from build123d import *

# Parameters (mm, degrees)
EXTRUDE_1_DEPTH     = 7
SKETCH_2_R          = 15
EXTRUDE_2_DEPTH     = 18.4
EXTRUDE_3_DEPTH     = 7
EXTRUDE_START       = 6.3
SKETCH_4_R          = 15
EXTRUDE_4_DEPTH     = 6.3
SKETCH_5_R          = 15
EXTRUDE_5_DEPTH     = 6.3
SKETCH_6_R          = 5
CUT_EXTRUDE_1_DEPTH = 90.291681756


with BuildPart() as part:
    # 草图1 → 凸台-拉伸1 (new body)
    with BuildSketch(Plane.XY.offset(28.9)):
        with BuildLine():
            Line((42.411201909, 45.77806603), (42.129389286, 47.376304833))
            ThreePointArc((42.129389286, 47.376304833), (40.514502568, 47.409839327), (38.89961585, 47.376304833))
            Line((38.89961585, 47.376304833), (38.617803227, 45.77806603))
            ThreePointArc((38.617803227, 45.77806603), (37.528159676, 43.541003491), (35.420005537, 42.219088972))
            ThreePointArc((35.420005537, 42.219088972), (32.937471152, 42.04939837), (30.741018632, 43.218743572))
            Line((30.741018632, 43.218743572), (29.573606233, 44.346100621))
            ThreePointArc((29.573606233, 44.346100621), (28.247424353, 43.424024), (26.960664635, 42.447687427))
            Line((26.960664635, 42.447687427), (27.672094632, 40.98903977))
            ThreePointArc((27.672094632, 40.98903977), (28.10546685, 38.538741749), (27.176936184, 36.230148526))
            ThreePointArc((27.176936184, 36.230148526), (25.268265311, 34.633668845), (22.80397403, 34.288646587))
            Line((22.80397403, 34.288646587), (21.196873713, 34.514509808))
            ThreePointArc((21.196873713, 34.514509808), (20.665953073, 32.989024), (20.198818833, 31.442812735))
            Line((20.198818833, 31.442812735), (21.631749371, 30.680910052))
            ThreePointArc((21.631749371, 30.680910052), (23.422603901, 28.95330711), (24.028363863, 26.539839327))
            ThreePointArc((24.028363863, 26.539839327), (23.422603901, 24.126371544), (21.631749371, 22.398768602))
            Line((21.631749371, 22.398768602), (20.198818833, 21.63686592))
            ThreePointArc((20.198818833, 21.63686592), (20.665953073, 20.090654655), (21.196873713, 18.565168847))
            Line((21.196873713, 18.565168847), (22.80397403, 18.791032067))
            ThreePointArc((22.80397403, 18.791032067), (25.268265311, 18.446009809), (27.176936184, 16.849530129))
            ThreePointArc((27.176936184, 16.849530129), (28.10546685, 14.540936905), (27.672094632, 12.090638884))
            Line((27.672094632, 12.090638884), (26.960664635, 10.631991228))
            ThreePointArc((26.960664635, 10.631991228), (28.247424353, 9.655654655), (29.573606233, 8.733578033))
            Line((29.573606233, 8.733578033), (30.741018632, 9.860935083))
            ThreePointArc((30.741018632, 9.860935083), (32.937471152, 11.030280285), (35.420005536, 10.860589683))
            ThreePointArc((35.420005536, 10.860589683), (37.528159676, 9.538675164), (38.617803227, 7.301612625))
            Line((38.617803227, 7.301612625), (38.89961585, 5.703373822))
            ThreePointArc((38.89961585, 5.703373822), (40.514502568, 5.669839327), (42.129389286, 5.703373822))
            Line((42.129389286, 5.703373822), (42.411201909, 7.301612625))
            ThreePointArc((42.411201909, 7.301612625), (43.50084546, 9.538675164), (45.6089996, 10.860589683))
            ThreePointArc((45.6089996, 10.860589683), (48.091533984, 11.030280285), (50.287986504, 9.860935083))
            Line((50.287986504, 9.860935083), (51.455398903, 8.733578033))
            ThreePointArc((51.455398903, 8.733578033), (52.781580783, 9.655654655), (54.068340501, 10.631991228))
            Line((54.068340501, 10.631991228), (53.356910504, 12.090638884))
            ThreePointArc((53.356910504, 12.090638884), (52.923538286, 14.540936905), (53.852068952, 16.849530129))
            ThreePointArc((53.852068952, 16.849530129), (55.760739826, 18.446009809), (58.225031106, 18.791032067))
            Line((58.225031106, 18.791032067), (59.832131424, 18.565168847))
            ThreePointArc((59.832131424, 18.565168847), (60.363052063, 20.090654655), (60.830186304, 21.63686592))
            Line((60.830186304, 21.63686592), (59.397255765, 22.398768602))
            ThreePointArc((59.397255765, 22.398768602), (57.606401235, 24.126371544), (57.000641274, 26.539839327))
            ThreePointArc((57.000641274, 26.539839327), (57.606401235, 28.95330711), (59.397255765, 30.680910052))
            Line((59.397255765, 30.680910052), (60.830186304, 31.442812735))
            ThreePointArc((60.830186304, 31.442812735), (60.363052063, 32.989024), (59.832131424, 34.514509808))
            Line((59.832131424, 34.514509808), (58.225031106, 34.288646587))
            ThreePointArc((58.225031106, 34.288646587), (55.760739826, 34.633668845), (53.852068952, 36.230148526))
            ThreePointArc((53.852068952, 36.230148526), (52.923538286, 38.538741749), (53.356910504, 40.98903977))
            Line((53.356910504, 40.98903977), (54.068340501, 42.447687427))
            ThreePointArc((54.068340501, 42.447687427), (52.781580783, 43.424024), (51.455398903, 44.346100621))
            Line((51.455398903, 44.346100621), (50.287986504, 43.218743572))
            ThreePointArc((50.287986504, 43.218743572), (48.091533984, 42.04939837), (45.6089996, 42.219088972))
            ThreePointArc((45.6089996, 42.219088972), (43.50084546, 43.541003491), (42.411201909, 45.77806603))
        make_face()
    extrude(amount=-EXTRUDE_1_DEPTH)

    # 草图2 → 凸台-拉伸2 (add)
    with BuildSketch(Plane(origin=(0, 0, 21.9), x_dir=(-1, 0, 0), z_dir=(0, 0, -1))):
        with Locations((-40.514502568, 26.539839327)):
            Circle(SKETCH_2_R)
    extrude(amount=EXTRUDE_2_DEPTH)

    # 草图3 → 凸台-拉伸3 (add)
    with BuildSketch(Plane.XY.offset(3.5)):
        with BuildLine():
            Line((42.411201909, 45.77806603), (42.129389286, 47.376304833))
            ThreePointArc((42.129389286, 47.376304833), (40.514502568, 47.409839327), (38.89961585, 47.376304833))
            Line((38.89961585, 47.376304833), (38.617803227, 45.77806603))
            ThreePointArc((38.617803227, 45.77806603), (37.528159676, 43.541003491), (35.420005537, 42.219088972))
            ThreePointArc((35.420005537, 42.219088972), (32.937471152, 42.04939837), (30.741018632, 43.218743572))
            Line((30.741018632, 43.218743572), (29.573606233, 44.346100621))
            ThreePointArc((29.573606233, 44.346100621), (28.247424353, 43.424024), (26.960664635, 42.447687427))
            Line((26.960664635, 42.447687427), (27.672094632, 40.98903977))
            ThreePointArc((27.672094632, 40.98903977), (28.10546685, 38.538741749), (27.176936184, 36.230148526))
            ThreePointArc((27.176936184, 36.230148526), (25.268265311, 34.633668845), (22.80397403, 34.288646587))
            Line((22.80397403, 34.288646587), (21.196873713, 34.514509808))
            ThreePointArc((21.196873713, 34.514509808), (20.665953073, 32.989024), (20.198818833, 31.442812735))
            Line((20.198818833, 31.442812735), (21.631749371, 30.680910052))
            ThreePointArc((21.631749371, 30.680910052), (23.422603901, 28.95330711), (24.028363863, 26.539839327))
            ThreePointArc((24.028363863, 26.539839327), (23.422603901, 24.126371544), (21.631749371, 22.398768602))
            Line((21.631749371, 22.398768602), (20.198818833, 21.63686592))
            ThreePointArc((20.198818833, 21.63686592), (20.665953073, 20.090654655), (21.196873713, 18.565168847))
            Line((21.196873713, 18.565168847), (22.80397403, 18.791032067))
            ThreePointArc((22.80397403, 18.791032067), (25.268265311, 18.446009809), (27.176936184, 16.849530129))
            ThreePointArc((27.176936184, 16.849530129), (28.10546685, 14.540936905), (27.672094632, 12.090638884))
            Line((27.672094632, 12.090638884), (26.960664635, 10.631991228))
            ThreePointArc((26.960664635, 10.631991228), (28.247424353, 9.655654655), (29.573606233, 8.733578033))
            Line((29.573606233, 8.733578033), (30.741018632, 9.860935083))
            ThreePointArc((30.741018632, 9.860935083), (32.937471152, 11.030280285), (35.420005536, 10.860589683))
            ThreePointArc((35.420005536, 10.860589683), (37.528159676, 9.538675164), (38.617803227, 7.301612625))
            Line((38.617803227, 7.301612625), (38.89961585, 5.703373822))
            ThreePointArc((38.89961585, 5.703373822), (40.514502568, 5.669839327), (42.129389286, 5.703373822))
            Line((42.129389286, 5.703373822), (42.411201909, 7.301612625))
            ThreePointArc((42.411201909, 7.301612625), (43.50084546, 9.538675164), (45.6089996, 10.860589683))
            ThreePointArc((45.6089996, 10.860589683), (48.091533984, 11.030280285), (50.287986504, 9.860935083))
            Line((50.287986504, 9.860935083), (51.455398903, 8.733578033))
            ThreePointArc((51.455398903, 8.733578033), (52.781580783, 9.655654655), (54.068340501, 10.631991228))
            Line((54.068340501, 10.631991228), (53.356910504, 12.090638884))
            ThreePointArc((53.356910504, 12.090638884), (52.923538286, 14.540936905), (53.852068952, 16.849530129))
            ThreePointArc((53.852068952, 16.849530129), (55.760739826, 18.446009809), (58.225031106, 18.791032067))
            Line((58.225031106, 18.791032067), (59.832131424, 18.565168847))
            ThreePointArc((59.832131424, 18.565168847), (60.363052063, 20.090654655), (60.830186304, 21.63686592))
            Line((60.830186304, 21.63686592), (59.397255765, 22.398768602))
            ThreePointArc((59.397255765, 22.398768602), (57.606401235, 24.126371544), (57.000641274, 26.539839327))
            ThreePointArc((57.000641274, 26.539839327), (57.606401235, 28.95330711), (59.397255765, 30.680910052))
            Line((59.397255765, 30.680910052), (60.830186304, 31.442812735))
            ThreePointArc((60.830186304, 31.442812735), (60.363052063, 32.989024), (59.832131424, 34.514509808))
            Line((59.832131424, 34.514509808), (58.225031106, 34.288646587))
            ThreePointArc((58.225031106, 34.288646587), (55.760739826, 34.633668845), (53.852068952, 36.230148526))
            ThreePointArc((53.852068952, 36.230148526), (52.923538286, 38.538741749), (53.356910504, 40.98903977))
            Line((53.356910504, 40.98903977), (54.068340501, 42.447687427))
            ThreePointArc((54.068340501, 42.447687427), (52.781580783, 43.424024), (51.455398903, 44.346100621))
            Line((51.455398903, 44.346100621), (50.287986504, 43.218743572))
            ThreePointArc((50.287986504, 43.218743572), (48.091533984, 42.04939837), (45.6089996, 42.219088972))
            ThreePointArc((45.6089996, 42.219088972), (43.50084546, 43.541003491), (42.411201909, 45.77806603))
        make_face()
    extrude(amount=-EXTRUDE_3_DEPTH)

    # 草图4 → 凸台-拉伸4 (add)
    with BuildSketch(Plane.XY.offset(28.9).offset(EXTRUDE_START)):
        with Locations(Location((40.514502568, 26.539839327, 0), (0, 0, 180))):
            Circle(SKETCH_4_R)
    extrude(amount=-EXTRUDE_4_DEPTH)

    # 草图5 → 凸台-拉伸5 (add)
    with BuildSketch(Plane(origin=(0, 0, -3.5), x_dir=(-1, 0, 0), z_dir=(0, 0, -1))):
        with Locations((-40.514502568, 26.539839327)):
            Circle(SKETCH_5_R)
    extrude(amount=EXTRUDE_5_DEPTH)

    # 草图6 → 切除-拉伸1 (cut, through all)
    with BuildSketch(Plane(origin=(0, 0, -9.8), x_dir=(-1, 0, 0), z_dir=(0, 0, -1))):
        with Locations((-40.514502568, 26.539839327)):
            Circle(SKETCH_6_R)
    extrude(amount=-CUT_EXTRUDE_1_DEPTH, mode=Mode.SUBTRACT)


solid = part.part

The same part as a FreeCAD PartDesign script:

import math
import FreeCAD as App
import Part
import Sketcher
Q = App.Units.Quantity

doc = App.newDocument("Part")
body = doc.addObject("PartDesign::Body", "Body")

# Sketch on XY plane
sketch1 = body.newObject("Sketcher::SketchObject", "Sketch")
sketch1.AttachmentSupport = (doc.getObject("XY_Plane"), [""])
sketch1.MapMode = "FlatFace"
sketch1.AttachmentOffset = App.Placement(App.Vector(0, 0, 28.9), App.Rotation())
sketch1.addGeometry([
    Part.LineSegment(App.Vector(42.411202, 45.778066, 0), App.Vector(42.129389, 47.376305, 0)),  # 0
    Part.ArcOfCircle(Part.Circle(App.Vector(40.514503, 8.509839, 0), App.Vector(0, 0, 1), 38.900001), math.radians(87.620751), math.radians(92.379249)),  # 1
    Part.LineSegment(App.Vector(38.899616, 47.376305, 0), App.Vector(38.617803, 45.778066, 0)),  # 2
    Part.ArcOfCircle(Part.Circle(App.Vector(34.164503, 46.563303, 0), App.Vector(0, 0, 1), 4.522), math.radians(-73.880401), math.radians(-10)),  # 3
    Part.ArcOfCircle(Part.Circle(App.Vector(33.882264, 46.471598, 0), App.Vector(0, 0, 1), 4.522), math.radians(-134), math.radians(-70.119599)),  # 4
    Part.LineSegment(App.Vector(30.741019, 43.218744, 0), App.Vector(29.573606, 44.346101, 0)),  # 5
    Part.ArcOfCircle(Part.Circle(App.Vector(51.112271, 11.953263, 0), App.Vector(0, 0, 1), 38.9), math.radians(123.620751), math.radians(128.379249)),  # 6
    Part.LineSegment(App.Vector(26.960665, 42.447687, 0), App.Vector(27.672095, 40.98904, 0)),  # 7
    Part.ArcOfCircle(Part.Circle(App.Vector(23.607748, 39.006725, 0), App.Vector(0, 0, 1), 4.522), math.radians(-37.880401), math.radians(26)),  # 8
    Part.ArcOfCircle(Part.Circle(App.Vector(23.433315, 38.766639, 0), App.Vector(0, 0, 1), 4.522), math.radians(-98), math.radians(-34.119599)),  # 9
    Part.LineSegment(App.Vector(22.803974, 34.288647, 0), App.Vector(21.196874, 34.51451, 0)),  # 10
    Part.ArcOfCircle(Part.Circle(App.Vector(57.662051, 20.968263, 0), App.Vector(0, 0, 1), 38.9), math.radians(159.620751), math.radians(164.379249)),  # 11
    Part.LineSegment(App.Vector(20.198819, 31.442813, 0), App.Vector(21.631749, 30.68091, 0)),  # 12
    Part.ArcOfCircle(Part.Circle(App.Vector(19.508799, 26.688221, 0), App.Vector(0, 0, 1), 4.522), math.radians(-1.880401), math.radians(62)),  # 13
    Part.ArcOfCircle(Part.Circle(App.Vector(19.508799, 26.391458, 0), App.Vector(0, 0, 1), 4.522), math.radians(-62), math.radians(1.880401)),  # 14
    Part.LineSegment(App.Vector(21.631749, 22.398769, 0), App.Vector(20.198819, 21.636866, 0)),  # 15
    Part.ArcOfCircle(Part.Circle(App.Vector(57.662051, 32.111416, 0), App.Vector(0, 0, 1), 38.9), math.radians(-164.379249), math.radians(-159.620751)),  # 16
    Part.LineSegment(App.Vector(21.196874, 18.565169, 0), App.Vector(22.803974, 18.791032, 0)),  # 17
    Part.ArcOfCircle(Part.Circle(App.Vector(23.433315, 14.31304, 0), App.Vector(0, 0, 1), 4.522), math.radians(34.119599), math.radians(98)),  # 18
    Part.ArcOfCircle(Part.Circle(App.Vector(23.607748, 14.072953, 0), App.Vector(0, 0, 1), 4.522), math.radians(-26), math.radians(37.880401)),  # 19
    Part.LineSegment(App.Vector(27.672095, 12.090639, 0), App.Vector(26.960665, 10.631991, 0)),  # 20
    Part.ArcOfCircle(Part.Circle(App.Vector(51.112271, 41.126416, 0), App.Vector(0, 0, 1), 38.900001), math.radians(-128.379249), math.radians(-123.620751)),  # 21
    Part.LineSegment(App.Vector(29.573606, 8.733578, 0), App.Vector(30.741019, 9.860935, 0)),  # 22
    Part.ArcOfCircle(Part.Circle(App.Vector(33.882264, 6.608081, 0), App.Vector(0, 0, 1), 4.522), math.radians(70.119599), math.radians(134)),  # 23
    Part.ArcOfCircle(Part.Circle(App.Vector(34.164503, 6.516376, 0), App.Vector(0, 0, 1), 4.522), math.radians(10), math.radians(73.880401)),  # 24
    Part.LineSegment(App.Vector(38.617803, 7.301613, 0), App.Vector(38.899616, 5.703374, 0)),  # 25
    Part.ArcOfCircle(Part.Circle(App.Vector(40.514503, 44.569839, 0), App.Vector(0, 0, 1), 38.899999), math.radians(-92.379249), math.radians(-87.620751)),  # 26
    Part.LineSegment(App.Vector(42.129389, 5.703374, 0), App.Vector(42.411202, 7.301613, 0)),  # 27
    Part.ArcOfCircle(Part.Circle(App.Vector(46.864503, 6.516376, 0), App.Vector(0, 0, 1), 4.522), math.radians(106.119599), math.radians(170)),  # 28
    Part.ArcOfCircle(Part.Circle(App.Vector(47.146741, 6.608081, 0), App.Vector(0, 0, 1), 4.522), math.radians(46), math.radians(109.880401)),  # 29
    Part.LineSegment(App.Vector(50.287987, 9.860935, 0), App.Vector(51.455399, 8.733578, 0)),  # 30
    Part.ArcOfCircle(Part.Circle(App.Vector(29.916734, 41.126416, 0), App.Vector(0, 0, 1), 38.900001), math.radians(-56.379249), math.radians(-51.620751)),  # 31
    Part.LineSegment(App.Vector(54.068341, 10.631991, 0), App.Vector(53.356911, 12.090639, 0)),  # 32
    Part.ArcOfCircle(Part.Circle(App.Vector(57.421257, 14.072953, 0), App.Vector(0, 0, 1), 4.522), math.radians(142.119599), math.radians(206)),  # 33
    Part.ArcOfCircle(Part.Circle(App.Vector(57.59569, 14.31304, 0), App.Vector(0, 0, 1), 4.522), math.radians(82), math.radians(145.880401)),  # 34
    Part.LineSegment(App.Vector(58.225031, 18.791032, 0), App.Vector(59.832131, 18.565169, 0)),  # 35
    Part.ArcOfCircle(Part.Circle(App.Vector(23.366953, 32.111416, 0), App.Vector(0, 0, 1), 38.900001), math.radians(-20.379249), math.radians(-15.620751)),  # 36
    Part.LineSegment(App.Vector(60.830186, 21.636866, 0), App.Vector(59.397256, 22.398769, 0)),  # 37
    Part.ArcOfCircle(Part.Circle(App.Vector(61.520206, 26.391458, 0), App.Vector(0, 0, 1), 4.522), math.radians(178.119599), math.radians(242)),  # 38
    Part.ArcOfCircle(Part.Circle(App.Vector(61.520206, 26.688221, 0), App.Vector(0, 0, 1), 4.522), math.radians(118), math.radians(181.880401)),  # 39
    Part.LineSegment(App.Vector(59.397256, 30.68091, 0), App.Vector(60.830186, 31.442813, 0)),  # 40
    Part.ArcOfCircle(Part.Circle(App.Vector(23.366953, 20.968263, 0), App.Vector(0, 0, 1), 38.900001), math.radians(15.620751), math.radians(20.379249)),  # 41
    Part.LineSegment(App.Vector(59.832131, 34.51451, 0), App.Vector(58.225031, 34.288647, 0)),  # 42
    Part.ArcOfCircle(Part.Circle(App.Vector(57.59569, 38.766639, 0), App.Vector(0, 0, 1), 4.522), math.radians(-145.880401), math.radians(-82)),  # 43
    Part.ArcOfCircle(Part.Circle(App.Vector(57.421257, 39.006725, 0), App.Vector(0, 0, 1), 4.522), math.radians(154), math.radians(217.880401)),  # 44
    Part.LineSegment(App.Vector(53.356911, 40.98904, 0), App.Vector(54.068341, 42.447687, 0)),  # 45
    Part.ArcOfCircle(Part.Circle(App.Vector(29.916734, 11.953263, 0), App.Vector(0, 0, 1), 38.9), math.radians(51.620751), math.radians(56.379249)),  # 46
    Part.LineSegment(App.Vector(51.455399, 44.346101, 0), App.Vector(50.287987, 43.218744, 0)),  # 47
    Part.ArcOfCircle(Part.Circle(App.Vector(47.146741, 46.471598, 0), App.Vector(0, 0, 1), 4.522), math.radians(-109.880401), math.radians(-46)),  # 48
    Part.ArcOfCircle(Part.Circle(App.Vector(46.864503, 46.563303, 0), App.Vector(0, 0, 1), 4.522), math.radians(-170), math.radians(-106.119599)),  # 49
], False)
sketch1.addConstraint([
    Sketcher.Constraint("Coincident", 0, 2, 1, 1),
    Sketcher.Constraint("Coincident", 1, 2, 2, 1),
    Sketcher.Constraint("Coincident", 2, 2, 3, 2),
    Sketcher.Constraint("Coincident", 3, 1, 4, 2),
    Sketcher.Constraint("Coincident", 4, 1, 5, 1),
    Sketcher.Constraint("Coincident", 5, 2, 6, 1),
    Sketcher.Constraint("Coincident", 6, 2, 7, 1),
    Sketcher.Constraint("Coincident", 7, 2, 8, 2),
    Sketcher.Constraint("Coincident", 8, 1, 9, 2),
    Sketcher.Constraint("Coincident", 9, 1, 10, 1),
    Sketcher.Constraint("Coincident", 10, 2, 11, 1),
    Sketcher.Constraint("Coincident", 11, 2, 12, 1),
    Sketcher.Constraint("Coincident", 12, 2, 13, 2),
    Sketcher.Constraint("Coincident", 13, 1, 14, 2),
    Sketcher.Constraint("Coincident", 14, 1, 15, 1),
    Sketcher.Constraint("Coincident", 15, 2, 16, 1),
    Sketcher.Constraint("Coincident", 16, 2, 17, 1),
    Sketcher.Constraint("Coincident", 17, 2, 18, 2),
    Sketcher.Constraint("Coincident", 18, 1, 19, 2),
    Sketcher.Constraint("Coincident", 19, 1, 20, 1),
    Sketcher.Constraint("Coincident", 20, 2, 21, 1),
    Sketcher.Constraint("Coincident", 21, 2, 22, 1),
    Sketcher.Constraint("Coincident", 22, 2, 23, 2),
    Sketcher.Constraint("Coincident", 23, 1, 24, 2),
    Sketcher.Constraint("Coincident", 24, 1, 25, 1),
    Sketcher.Constraint("Coincident", 25, 2, 26, 1),
    Sketcher.Constraint("Coincident", 26, 2, 27, 1),
    Sketcher.Constraint("Coincident", 27, 2, 28, 2),
    Sketcher.Constraint("Coincident", 28, 1, 29, 2),
    Sketcher.Constraint("Coincident", 29, 1, 30, 1),
    Sketcher.Constraint("Coincident", 30, 2, 31, 1),
    Sketcher.Constraint("Coincident", 31, 2, 32, 1),
    Sketcher.Constraint("Coincident", 32, 2, 33, 2),
    Sketcher.Constraint("Coincident", 33, 1, 34, 2),
    Sketcher.Constraint("Coincident", 34, 1, 35, 1),
    Sketcher.Constraint("Coincident", 35, 2, 36, 1),
    Sketcher.Constraint("Coincident", 36, 2, 37, 1),
    Sketcher.Constraint("Coincident", 37, 2, 38, 2),
    Sketcher.Constraint("Coincident", 38, 1, 39, 2),
    Sketcher.Constraint("Coincident", 39, 1, 40, 1),
    Sketcher.Constraint("Coincident", 40, 2, 41, 1),
    Sketcher.Constraint("Coincident", 41, 2, 42, 1),
    Sketcher.Constraint("Coincident", 42, 2, 43, 2),
    Sketcher.Constraint("Coincident", 43, 1, 44, 2),
    Sketcher.Constraint("Coincident", 44, 1, 45, 1),
    Sketcher.Constraint("Coincident", 45, 2, 46, 1),
    Sketcher.Constraint("Coincident", 46, 2, 47, 1),
    Sketcher.Constraint("Coincident", 47, 2, 48, 2),
    Sketcher.Constraint("Coincident", 48, 1, 49, 2),
    Sketcher.Constraint("Coincident", 49, 1, 0, 1),
    Sketcher.Constraint("Radius", 1, Q("38.900001 mm")),
    Sketcher.Constraint("Radius", 6, Q("38.9 mm")),
    Sketcher.Constraint("Radius", 11, Q("38.9 mm")),
    Sketcher.Constraint("Radius", 16, Q("38.9 mm")),
    Sketcher.Constraint("Radius", 21, Q("38.900001 mm")),
    Sketcher.Constraint("Radius", 26, Q("38.899999 mm")),
    Sketcher.Constraint("Radius", 31, Q("38.900001 mm")),
    Sketcher.Constraint("Radius", 36, Q("38.900001 mm")),
    Sketcher.Constraint("Radius", 41, Q("38.900001 mm")),
    Sketcher.Constraint("Radius", 46, Q("38.9 mm")),
    Sketcher.Constraint("Radius", 3, Q("4.522 mm")),
    Sketcher.Constraint("Radius", 4, Q("4.522 mm")),
    Sketcher.Constraint("Radius", 8, Q("4.522 mm")),
    Sketcher.Constraint("Radius", 9, Q("4.522 mm")),
    Sketcher.Constraint("Radius", 13, Q("4.522 mm")),
    Sketcher.Constraint("Radius", 14, Q("4.522 mm")),
    Sketcher.Constraint("Radius", 18, Q("4.522 mm")),
    Sketcher.Constraint("Radius", 19, Q("4.522 mm")),
    Sketcher.Constraint("Radius", 23, Q("4.522 mm")),
    Sketcher.Constraint("Radius", 24, Q("4.522 mm")),
    Sketcher.Constraint("Radius", 28, Q("4.522 mm")),
    Sketcher.Constraint("Radius", 29, Q("4.522 mm")),
    Sketcher.Constraint("Radius", 33, Q("4.522 mm")),
    Sketcher.Constraint("Radius", 34, Q("4.522 mm")),
    Sketcher.Constraint("Radius", 38, Q("4.522 mm")),
    Sketcher.Constraint("Radius", 39, Q("4.522 mm")),
    Sketcher.Constraint("Radius", 43, Q("4.522 mm")),
    Sketcher.Constraint("Radius", 44, Q("4.522 mm")),
    Sketcher.Constraint("Radius", 48, Q("4.522 mm")),
    Sketcher.Constraint("Radius", 49, Q("4.522 mm")),
    Sketcher.Constraint("DistanceX", -1, 1, 28, 1, Q("45.609 mm")),
    Sketcher.Constraint("DistanceX", -1, 1, 48, 1, Q("45.609 mm")),
    Sketcher.Constraint("DistanceY", -1, 1, 4, 3, Q("46.471598 mm")),
    Sketcher.Constraint("DistanceX", -1, 1, 13, 3, Q("19.508799 mm")),
    Sketcher.Constraint("DistanceX", -1, 1, 14, 3, Q("19.508799 mm")),
    Sketcher.Constraint("DistanceY", -1, 1, 48, 3, Q("46.471598 mm")),
    Sketcher.Constraint("DistanceY", -1, 1, 5, 2, Q("44.346101 mm")),
    Sketcher.Constraint("DistanceX", -1, 1, 27, 2, Q("42.411202 mm")),
    Sketcher.Constraint("DistanceX", -1, 1, 30, 2, Q("51.455399 mm")),
    Sketcher.Constraint("DistanceX", -1, 1, 46, 2, Q("51.455399 mm")),
    Sketcher.Constraint("DistanceY", -1, 1, 46, 2, Q("44.346101 mm")),
    Sketcher.Constraint("DistanceX", -1, 1, 49, 1, Q("42.411202 mm")),
    Sketcher.Constraint("DistanceY", -1, 1, 1, 3, Q("8.509839 mm")),
    Sketcher.Constraint("DistanceX", -1, 1, 6, 3, Q("51.112271 mm")),
    Sketcher.Constraint("DistanceY", -1, 1, 9, 3, Q("38.766639 mm")),
    Sketcher.Constraint("DistanceX", -1, 1, 11, 3, Q("57.662051 mm")),
    Sketcher.Constraint("DistanceY", -1, 1, 13, 3, Q("26.688221 mm")),
    Sketcher.Constraint("DistanceX", -1, 1, 16, 3, Q("57.662051 mm")),
    Sketcher.Constraint("DistanceY", -1, 1, 18, 3, Q("14.31304 mm")),
    Sketcher.Constraint("DistanceX", -1, 1, 21, 3, Q("51.112271 mm")),
    Sketcher.Constraint("DistanceY", -1, 1, 23, 3, Q("6.608081 mm")),
    Sketcher.Constraint("DistanceY", -1, 1, 26, 3, Q("44.569839 mm")),
    Sketcher.Constraint("DistanceX", -1, 1, 29, 3, Q("47.146741 mm")),
    Sketcher.Constraint("DistanceY", -1, 1, 29, 3, Q("6.608081 mm")),
    Sketcher.Constraint("DistanceX", -1, 1, 34, 3, Q("57.59569 mm")),
    Sketcher.Constraint("DistanceY", -1, 1, 34, 3, Q("14.31304 mm")),
    Sketcher.Constraint("DistanceY", -1, 1, 39, 3, Q("26.688221 mm")),
    Sketcher.Constraint("DistanceX", -1, 1, 43, 3, Q("57.59569 mm")),
    Sketcher.Constraint("DistanceY", -1, 1, 43, 3, Q("38.766639 mm")),
    Sketcher.Constraint("DistanceX", -1, 1, 48, 3, Q("47.146741 mm")),
    Sketcher.Constraint("DistanceX", -1, 1, 0, 2, Q("42.129389 mm")),
    Sketcher.Constraint("DistanceY", -1, 1, 3, 1, Q("42.219089 mm")),
    Sketcher.Constraint("DistanceX", -1, 1, 4, 1, Q("30.741019 mm")),
    Sketcher.Constraint("DistanceY", -1, 1, 7, 2, Q("40.98904 mm")),
    Sketcher.Constraint("DistanceY", -1, 1, 8, 1, Q("36.230149 mm")),
    Sketcher.Constraint("DistanceY", -1, 1, 10, 2, Q("34.51451 mm")),
    Sketcher.Constraint("DistanceX", -1, 1, 11, 2, Q("20.198819 mm")),
    Sketcher.Constraint("DistanceX", -1, 1, 12, 2, Q("21.631749 mm")),
    Sketcher.Constraint("DistanceY", -1, 1, 13, 1, Q("26.539839 mm")),
    Sketcher.Constraint("DistanceX", -1, 1, 14, 1, Q("21.631749 mm")),
    Sketcher.Constraint("DistanceX", -1, 1, 15, 2, Q("20.198819 mm")),
    Sketcher.Constraint("DistanceY", -1, 1, 16, 2, Q("18.565169 mm")),
    Sketcher.Constraint("DistanceY", -1, 1, 18, 1, Q("16.84953 mm")),
    Sketcher.Constraint("DistanceY", -1, 1, 19, 1, Q("12.090639 mm")),
    Sketcher.Constraint("DistanceY", -1, 1, 20, 2, Q("10.631991 mm")),
    Sketcher.Constraint("DistanceY", -1, 1, 21, 2, Q("8.733578 mm")),
    Sketcher.Constraint("DistanceX", -1, 1, 22, 2, Q("30.741019 mm")),
    Sketcher.Constraint("DistanceY", -1, 1, 23, 1, Q("10.86059 mm")),
    Sketcher.Constraint("DistanceX", -1, 1, 26, 2, Q("42.129389 mm")),
    Sketcher.Constraint("DistanceY", -1, 1, 30, 2, Q("8.733578 mm")),
    Sketcher.Constraint("DistanceX", -1, 1, 31, 2, Q("54.068341 mm")),
    Sketcher.Constraint("DistanceY", -1, 1, 31, 2, Q("10.631991 mm")),
    Sketcher.Constraint("DistanceX", -1, 1, 32, 2, Q("53.356911 mm")),
    Sketcher.Constraint("DistanceY", -1, 1, 32, 2, Q("12.090639 mm")),
    Sketcher.Constraint("DistanceX", -1, 1, 33, 1, Q("53.852069 mm")),
    Sketcher.Constraint("DistanceX", -1, 1, 34, 1, Q("58.225031 mm")),
    Sketcher.Constraint("DistanceX", -1, 1, 35, 2, Q("59.832131 mm")),
    Sketcher.Constraint("DistanceY", -1, 1, 35, 2, Q("18.565169 mm")),
    Sketcher.Constraint("DistanceY", -1, 1, 37, 2, Q("22.398769 mm")),
    Sketcher.Constraint("DistanceX", -1, 1, 38, 1, Q("57.000641 mm")),
    Sketcher.Constraint("DistanceY", -1, 1, 38, 1, Q("26.539839 mm")),
    Sketcher.Constraint("DistanceY", -1, 1, 39, 1, Q("30.68091 mm")),
    Sketcher.Constraint("DistanceX", -1, 1, 41, 2, Q("59.832131 mm")),
    Sketcher.Constraint("DistanceY", -1, 1, 41, 2, Q("34.51451 mm")),
    Sketcher.Constraint("DistanceX", -1, 1, 42, 2, Q("58.225031 mm")),
    Sketcher.Constraint("DistanceX", -1, 1, 43, 1, Q("53.852069 mm")),
    Sketcher.Constraint("DistanceX", -1, 1, 44, 1, Q("53.356911 mm")),
    Sketcher.Constraint("DistanceY", -1, 1, 44, 1, Q("40.98904 mm")),
    Sketcher.Constraint("DistanceX", -1, 1, 45, 2, Q("54.068341 mm")),
    Sketcher.Constraint("Distance", 0, Q("1.622894 mm")),
    Sketcher.Constraint("Distance", 2, Q("1.622894 mm")),
    Sketcher.Constraint("Distance", 5, Q("1.622894 mm")),
    Sketcher.Constraint("Distance", 7, Q("1.622894 mm")),
    Sketcher.Constraint("Distance", 10, Q("1.622894 mm")),
    Sketcher.Constraint("Distance", 12, Q("1.622894 mm")),
    Sketcher.Constraint("Distance", 15, Q("1.622894 mm")),
    Sketcher.Constraint("Distance", 17, Q("1.622894 mm")),
    Sketcher.Constraint("Distance", 20, Q("1.622894 mm")),
    Sketcher.Constraint("Distance", 22, Q("1.622894 mm")),
    Sketcher.Constraint("Distance", 25, Q("1.622894 mm")),
    Sketcher.Constraint("Distance", 27, Q("1.622894 mm")),
    Sketcher.Constraint("Distance", 30, Q("1.622894 mm")),
    Sketcher.Constraint("Distance", 37, Q("1.622894 mm")),
    Sketcher.Constraint("Distance", 40, Q("1.622894 mm")),
    Sketcher.Constraint("Distance", 45, Q("1.622894 mm")),
    Sketcher.Constraint("Distance", 47, Q("1.622894 mm")),
    Sketcher.Constraint("DistanceX", -1, 1, 1, 3, Q("40.514503 mm")),
    Sketcher.Constraint("DistanceX", -1, 1, 3, 3, Q("34.164503 mm")),
    Sketcher.Constraint("DistanceY", -1, 1, 3, 3, Q("46.563303 mm")),
    Sketcher.Constraint("DistanceX", -1, 1, 8, 3, Q("23.607748 mm")),
    Sketcher.Constraint("DistanceY", -1, 1, 8, 3, Q("39.006725 mm")),
    Sketcher.Constraint("DistanceX", -1, 1, 18, 3, Q("23.433315 mm")),
    Sketcher.Constraint("DistanceX", -1, 1, 19, 3, Q("23.607748 mm")),
    Sketcher.Constraint("DistanceX", -1, 1, 24, 3, Q("34.164503 mm")),
    Sketcher.Constraint("DistanceX", -1, 1, 26, 3, Q("40.514503 mm")),
    Sketcher.Constraint("DistanceX", -1, 1, 36, 3, Q("23.366953 mm")),
    Sketcher.Constraint("DistanceX", -1, 1, 38, 3, Q("61.520206 mm")),
    Sketcher.Constraint("DistanceX", -1, 1, 41, 3, Q("23.366953 mm")),
    Sketcher.Constraint("DistanceX", -1, 1, 1, 2, Q("38.899616 mm")),
    Sketcher.Constraint("DistanceX", -1, 1, 24, 1, Q("38.617803 mm")),
])
pad1 = body.newObject("PartDesign::Pad", "Pad")
pad1.Profile = sketch1
pad1.Length = 7
pad1.Reversed = True

# Sketch on XY plane
sketch2 = body.newObject("Sketcher::SketchObject", "Sketch001")
sketch2.AttachmentSupport = (doc.getObject("XY_Plane"), [""])
sketch2.MapMode = "FlatFace"
sketch2.AttachmentOffset = App.Placement(App.Vector(0, 0, 21.9), App.Rotation())
sketch2.addGeometry(Part.Circle(App.Vector(40.514503, 26.539839, 0), App.Vector(0, 0, 1), 15), False)
sketch2.addConstraint([
    Sketcher.Constraint("Diameter", 0, Q("30 mm")),
    Sketcher.Constraint("DistanceY", -1, 1, 0, 3, Q("26.539839 mm")),
    Sketcher.Constraint("DistanceX", -1, 1, 0, 3, Q("40.514503 mm")),
])
pad2 = body.newObject("PartDesign::Pad", "Pad001")
pad2.Profile = sketch2
pad2.Length = 18.4
pad2.Reversed = True

# Sketch on XY plane
sketch3 = body.newObject("Sketcher::SketchObject", "Sketch002")
sketch3.AttachmentSupport = (doc.getObject("XY_Plane"), [""])
sketch3.MapMode = "FlatFace"
sketch3.AttachmentOffset = App.Placement(App.Vector(0, 0, 3.5), App.Rotation())
sketch3.addGeometry([
    Part.LineSegment(App.Vector(42.411202, 45.778066, 0), App.Vector(42.129389, 47.376305, 0)),  # 0
    Part.ArcOfCircle(Part.Circle(App.Vector(40.514503, 8.509839, 0), App.Vector(0, 0, 1), 38.900001), math.radians(87.620751), math.radians(92.379249)),  # 1
    Part.LineSegment(App.Vector(38.899616, 47.376305, 0), App.Vector(38.617803, 45.778066, 0)),  # 2
    Part.ArcOfCircle(Part.Circle(App.Vector(34.164503, 46.563303, 0), App.Vector(0, 0, 1), 4.522), math.radians(-73.880401), math.radians(-10)),  # 3
    Part.ArcOfCircle(Part.Circle(App.Vector(33.882264, 46.471598, 0), App.Vector(0, 0, 1), 4.522), math.radians(-134), math.radians(-70.119599)),  # 4
    Part.LineSegment(App.Vector(30.741019, 43.218744, 0), App.Vector(29.573606, 44.346101, 0)),  # 5
    Part.ArcOfCircle(Part.Circle(App.Vector(51.112271, 11.953263, 0), App.Vector(0, 0, 1), 38.9), math.radians(123.620751), math.radians(128.379249)),  # 6
    Part.LineSegment(App.Vector(26.960665, 42.447687, 0), App.Vector(27.672095, 40.98904, 0)),  # 7
    Part.ArcOfCircle(Part.Circle(App.Vector(23.607748, 39.006725, 0), App.Vector(0, 0, 1), 4.522), math.radians(-37.880401), math.radians(26)),  # 8
    Part.ArcOfCircle(Part.Circle(App.Vector(23.433315, 38.766639, 0), App.Vector(0, 0, 1), 4.522), math.radians(-98), math.radians(-34.119599)),  # 9
    Part.LineSegment(App.Vector(22.803974, 34.288647, 0), App.Vector(21.196874, 34.51451, 0)),  # 10
    Part.ArcOfCircle(Part.Circle(App.Vector(57.662051, 20.968263, 0), App.Vector(0, 0, 1), 38.9), math.radians(159.620751), math.radians(164.379249)),  # 11
    Part.LineSegment(App.Vector(20.198819, 31.442813, 0), App.Vector(21.631749, 30.68091, 0)),  # 12
    Part.ArcOfCircle(Part.Circle(App.Vector(19.508799, 26.688221, 0), App.Vector(0, 0, 1), 4.522), math.radians(-1.880401), math.radians(62)),  # 13
    Part.ArcOfCircle(Part.Circle(App.Vector(19.508799, 26.391458, 0), App.Vector(0, 0, 1), 4.522), math.radians(-62), math.radians(1.880401)),  # 14
    Part.LineSegment(App.Vector(21.631749, 22.398769, 0), App.Vector(20.198819, 21.636866, 0)),  # 15
    Part.ArcOfCircle(Part.Circle(App.Vector(57.662051, 32.111416, 0), App.Vector(0, 0, 1), 38.9), math.radians(-164.379249), math.radians(-159.620751)),  # 16
    Part.LineSegment(App.Vector(21.196874, 18.565169, 0), App.Vector(22.803974, 18.791032, 0)),  # 17
    Part.ArcOfCircle(Part.Circle(App.Vector(23.433315, 14.31304, 0), App.Vector(0, 0, 1), 4.522), math.radians(34.119599), math.radians(98)),  # 18
    Part.ArcOfCircle(Part.Circle(App.Vector(23.607748, 14.072953, 0), App.Vector(0, 0, 1), 4.522), math.radians(-26), math.radians(37.880401)),  # 19
    Part.LineSegment(App.Vector(27.672095, 12.090639, 0), App.Vector(26.960665, 10.631991, 0)),  # 20
    Part.ArcOfCircle(Part.Circle(App.Vector(51.112271, 41.126416, 0), App.Vector(0, 0, 1), 38.900001), math.radians(-128.379249), math.radians(-123.620751)),  # 21
    Part.LineSegment(App.Vector(29.573606, 8.733578, 0), App.Vector(30.741019, 9.860935, 0)),  # 22
    Part.ArcOfCircle(Part.Circle(App.Vector(33.882264, 6.608081, 0), App.Vector(0, 0, 1), 4.522), math.radians(70.119599), math.radians(134)),  # 23
    Part.ArcOfCircle(Part.Circle(App.Vector(34.164503, 6.516376, 0), App.Vector(0, 0, 1), 4.522), math.radians(10), math.radians(73.880401)),  # 24
    Part.LineSegment(App.Vector(38.617803, 7.301613, 0), App.Vector(38.899616, 5.703374, 0)),  # 25
    Part.ArcOfCircle(Part.Circle(App.Vector(40.514503, 44.569839, 0), App.Vector(0, 0, 1), 38.899999), math.radians(-92.379249), math.radians(-87.620751)),  # 26
    Part.LineSegment(App.Vector(42.129389, 5.703374, 0), App.Vector(42.411202, 7.301613, 0)),  # 27
    Part.ArcOfCircle(Part.Circle(App.Vector(46.864503, 6.516376, 0), App.Vector(0, 0, 1), 4.522), math.radians(106.119599), math.radians(170)),  # 28
    Part.ArcOfCircle(Part.Circle(App.Vector(47.146741, 6.608081, 0), App.Vector(0, 0, 1), 4.522), math.radians(46), math.radians(109.880401)),  # 29
    Part.LineSegment(App.Vector(50.287987, 9.860935, 0), App.Vector(51.455399, 8.733578, 0)),  # 30
    Part.ArcOfCircle(Part.Circle(App.Vector(29.916734, 41.126416, 0), App.Vector(0, 0, 1), 38.900001), math.radians(-56.379249), math.radians(-51.620751)),  # 31
    Part.LineSegment(App.Vector(54.068341, 10.631991, 0), App.Vector(53.356911, 12.090639, 0)),  # 32
    Part.ArcOfCircle(Part.Circle(App.Vector(57.421257, 14.072953, 0), App.Vector(0, 0, 1), 4.522), math.radians(142.119599), math.radians(206)),  # 33
    Part.ArcOfCircle(Part.Circle(App.Vector(57.59569, 14.31304, 0), App.Vector(0, 0, 1), 4.522), math.radians(82), math.radians(145.880401)),  # 34
    Part.LineSegment(App.Vector(58.225031, 18.791032, 0), App.Vector(59.832131, 18.565169, 0)),  # 35
    Part.ArcOfCircle(Part.Circle(App.Vector(23.366953, 32.111416, 0), App.Vector(0, 0, 1), 38.900001), math.radians(-20.379249), math.radians(-15.620751)),  # 36
    Part.LineSegment(App.Vector(60.830186, 21.636866, 0), App.Vector(59.397256, 22.398769, 0)),  # 37
    Part.ArcOfCircle(Part.Circle(App.Vector(61.520206, 26.391458, 0), App.Vector(0, 0, 1), 4.522), math.radians(178.119599), math.radians(242)),  # 38
    Part.ArcOfCircle(Part.Circle(App.Vector(61.520206, 26.688221, 0), App.Vector(0, 0, 1), 4.522), math.radians(118), math.radians(181.880401)),  # 39
    Part.LineSegment(App.Vector(59.397256, 30.68091, 0), App.Vector(60.830186, 31.442813, 0)),  # 40
    Part.ArcOfCircle(Part.Circle(App.Vector(23.366953, 20.968263, 0), App.Vector(0, 0, 1), 38.900001), math.radians(15.620751), math.radians(20.379249)),  # 41
    Part.LineSegment(App.Vector(59.832131, 34.51451, 0), App.Vector(58.225031, 34.288647, 0)),  # 42
    Part.ArcOfCircle(Part.Circle(App.Vector(57.59569, 38.766639, 0), App.Vector(0, 0, 1), 4.522), math.radians(-145.880401), math.radians(-82)),  # 43
    Part.ArcOfCircle(Part.Circle(App.Vector(57.421257, 39.006725, 0), App.Vector(0, 0, 1), 4.522), math.radians(154), math.radians(217.880401)),  # 44
    Part.LineSegment(App.Vector(53.356911, 40.98904, 0), App.Vector(54.068341, 42.447687, 0)),  # 45
    Part.ArcOfCircle(Part.Circle(App.Vector(29.916734, 11.953263, 0), App.Vector(0, 0, 1), 38.9), math.radians(51.620751), math.radians(56.379249)),  # 46
    Part.LineSegment(App.Vector(51.455399, 44.346101, 0), App.Vector(50.287987, 43.218744, 0)),  # 47
    Part.ArcOfCircle(Part.Circle(App.Vector(47.146741, 46.471598, 0), App.Vector(0, 0, 1), 4.522), math.radians(-109.880401), math.radians(-46)),  # 48
    Part.ArcOfCircle(Part.Circle(App.Vector(46.864503, 46.563303, 0), App.Vector(0, 0, 1), 4.522), math.radians(-170), math.radians(-106.119599)),  # 49
], False)
sketch3.addConstraint([
    Sketcher.Constraint("Coincident", 0, 2, 1, 1),
    Sketcher.Constraint("Coincident", 1, 2, 2, 1),
    Sketcher.Constraint("Coincident", 2, 2, 3, 2),
    Sketcher.Constraint("Coincident", 3, 1, 4, 2),
    Sketcher.Constraint("Coincident", 4, 1, 5, 1),
    Sketcher.Constraint("Coincident", 5, 2, 6, 1),
    Sketcher.Constraint("Coincident", 6, 2, 7, 1),
    Sketcher.Constraint("Coincident", 7, 2, 8, 2),
    Sketcher.Constraint("Coincident", 8, 1, 9, 2),
    Sketcher.Constraint("Coincident", 9, 1, 10, 1),
    Sketcher.Constraint("Coincident", 10, 2, 11, 1),
    Sketcher.Constraint("Coincident", 11, 2, 12, 1),
    Sketcher.Constraint("Coincident", 12, 2, 13, 2),
    Sketcher.Constraint("Coincident", 13, 1, 14, 2),
    Sketcher.Constraint("Coincident", 14, 1, 15, 1),
    Sketcher.Constraint("Coincident", 15, 2, 16, 1),
    Sketcher.Constraint("Coincident", 16, 2, 17, 1),
    Sketcher.Constraint("Coincident", 17, 2, 18, 2),
    Sketcher.Constraint("Coincident", 18, 1, 19, 2),
    Sketcher.Constraint("Coincident", 19, 1, 20, 1),
    Sketcher.Constraint("Coincident", 20, 2, 21, 1),
    Sketcher.Constraint("Coincident", 21, 2, 22, 1),
    Sketcher.Constraint("Coincident", 22, 2, 23, 2),
    Sketcher.Constraint("Coincident", 23, 1, 24, 2),
    Sketcher.Constraint("Coincident", 24, 1, 25, 1),
    Sketcher.Constraint("Coincident", 25, 2, 26, 1),
    Sketcher.Constraint("Coincident", 26, 2, 27, 1),
    Sketcher.Constraint("Coincident", 27, 2, 28, 2),
    Sketcher.Constraint("Coincident", 28, 1, 29, 2),
    Sketcher.Constraint("Coincident", 29, 1, 30, 1),
    Sketcher.Constraint("Coincident", 30, 2, 31, 1),
    Sketcher.Constraint("Coincident", 31, 2, 32, 1),
    Sketcher.Constraint("Coincident", 32, 2, 33, 2),
    Sketcher.Constraint("Coincident", 33, 1, 34, 2),
    Sketcher.Constraint("Coincident", 34, 1, 35, 1),
    Sketcher.Constraint("Coincident", 35, 2, 36, 1),
    Sketcher.Constraint("Coincident", 36, 2, 37, 1),
    Sketcher.Constraint("Coincident", 37, 2, 38, 2),
    Sketcher.Constraint("Coincident", 38, 1, 39, 2),
    Sketcher.Constraint("Coincident", 39, 1, 40, 1),
    Sketcher.Constraint("Coincident", 40, 2, 41, 1),
    Sketcher.Constraint("Coincident", 41, 2, 42, 1),
    Sketcher.Constraint("Coincident", 42, 2, 43, 2),
    Sketcher.Constraint("Coincident", 43, 1, 44, 2),
    Sketcher.Constraint("Coincident", 44, 1, 45, 1),
    Sketcher.Constraint("Coincident", 45, 2, 46, 1),
    Sketcher.Constraint("Coincident", 46, 2, 47, 1),
    Sketcher.Constraint("Coincident", 47, 2, 48, 2),
    Sketcher.Constraint("Coincident", 48, 1, 49, 2),
    Sketcher.Constraint("Coincident", 49, 1, 0, 1),
    Sketcher.Constraint("Radius", 1, Q("38.900001 mm")),
    Sketcher.Constraint("Radius", 6, Q("38.9 mm")),
    Sketcher.Constraint("Radius", 11, Q("38.9 mm")),
    Sketcher.Constraint("Radius", 16, Q("38.9 mm")),
    Sketcher.Constraint("Radius", 21, Q("38.900001 mm")),
    Sketcher.Constraint("Radius", 26, Q("38.899999 mm")),
    Sketcher.Constraint("Radius", 31, Q("38.900001 mm")),
    Sketcher.Constraint("Radius", 36, Q("38.900001 mm")),
    Sketcher.Constraint("Radius", 41, Q("38.900001 mm")),
    Sketcher.Constraint("Radius", 46, Q("38.9 mm")),
    Sketcher.Constraint("Radius", 3, Q("4.522 mm")),
    Sketcher.Constraint("Radius", 4, Q("4.522 mm")),
    Sketcher.Constraint("Radius", 8, Q("4.522 mm")),
    Sketcher.Constraint("Radius", 9, Q("4.522 mm")),
    Sketcher.Constraint("Radius", 13, Q("4.522 mm")),
    Sketcher.Constraint("Radius", 14, Q("4.522 mm")),
    Sketcher.Constraint("Radius", 18, Q("4.522 mm")),
    Sketcher.Constraint("Radius", 19, Q("4.522 mm")),
    Sketcher.Constraint("Radius", 23, Q("4.522 mm")),
    Sketcher.Constraint("Radius", 24, Q("4.522 mm")),
    Sketcher.Constraint("Radius", 28, Q("4.522 mm")),
    Sketcher.Constraint("Radius", 29, Q("4.522 mm")),
    Sketcher.Constraint("Radius", 33, Q("4.522 mm")),
    Sketcher.Constraint("Radius", 34, Q("4.522 mm")),
    Sketcher.Constraint("Radius", 38, Q("4.522 mm")),
    Sketcher.Constraint("Radius", 39, Q("4.522 mm")),
    Sketcher.Constraint("Radius", 43, Q("4.522 mm")),
    Sketcher.Constraint("Radius", 44, Q("4.522 mm")),
    Sketcher.Constraint("Radius", 48, Q("4.522 mm")),
    Sketcher.Constraint("Radius", 49, Q("4.522 mm")),
    Sketcher.Constraint("DistanceX", -1, 1, 28, 1, Q("45.609 mm")),
    Sketcher.Constraint("DistanceX", -1, 1, 48, 1, Q("45.609 mm")),
    Sketcher.Constraint("DistanceY", -1, 1, 4, 3, Q("46.471598 mm")),
    Sketcher.Constraint("DistanceX", -1, 1, 13, 3, Q("19.508799 mm")),
    Sketcher.Constraint("DistanceX", -1, 1, 14, 3, Q("19.508799 mm")),
    Sketcher.Constraint("DistanceY", -1, 1, 48, 3, Q("46.471598 mm")),
    Sketcher.Constraint("DistanceY", -1, 1, 5, 2, Q("44.346101 mm")),
    Sketcher.Constraint("DistanceX", -1, 1, 27, 2, Q("42.411202 mm")),
    Sketcher.Constraint("DistanceX", -1, 1, 30, 2, Q("51.455399 mm")),
    Sketcher.Constraint("DistanceX", -1, 1, 46, 2, Q("51.455399 mm")),
    Sketcher.Constraint("DistanceY", -1, 1, 46, 2, Q("44.346101 mm")),
    Sketcher.Constraint("DistanceX", -1, 1, 49, 1, Q("42.411202 mm")),
    Sketcher.Constraint("DistanceY", -1, 1, 1, 3, Q("8.509839 mm")),
    Sketcher.Constraint("DistanceX", -1, 1, 6, 3, Q("51.112271 mm")),
    Sketcher.Constraint("DistanceY", -1, 1, 9, 3, Q("38.766639 mm")),
    Sketcher.Constraint("DistanceX", -1, 1, 11, 3, Q("57.662051 mm")),
    Sketcher.Constraint("DistanceY", -1, 1, 13, 3, Q("26.688221 mm")),
    Sketcher.Constraint("DistanceX", -1, 1, 16, 3, Q("57.662051 mm")),
    Sketcher.Constraint("DistanceY", -1, 1, 18, 3, Q("14.31304 mm")),
    Sketcher.Constraint("DistanceX", -1, 1, 21, 3, Q("51.112271 mm")),
    Sketcher.Constraint("DistanceY", -1, 1, 23, 3, Q("6.608081 mm")),
    Sketcher.Constraint("DistanceY", -1, 1, 26, 3, Q("44.569839 mm")),
    Sketcher.Constraint("DistanceX", -1, 1, 29, 3, Q("47.146741 mm")),
    Sketcher.Constraint("DistanceY", -1, 1, 29, 3, Q("6.608081 mm")),
    Sketcher.Constraint("DistanceX", -1, 1, 34, 3, Q("57.59569 mm")),
    Sketcher.Constraint("DistanceY", -1, 1, 34, 3, Q("14.31304 mm")),
    Sketcher.Constraint("DistanceY", -1, 1, 39, 3, Q("26.688221 mm")),
    Sketcher.Constraint("DistanceX", -1, 1, 43, 3, Q("57.59569 mm")),
    Sketcher.Constraint("DistanceY", -1, 1, 43, 3, Q("38.766639 mm")),
    Sketcher.Constraint("DistanceX", -1, 1, 48, 3, Q("47.146741 mm")),
    Sketcher.Constraint("DistanceX", -1, 1, 0, 2, Q("42.129389 mm")),
    Sketcher.Constraint("DistanceY", -1, 1, 3, 1, Q("42.219089 mm")),
    Sketcher.Constraint("DistanceX", -1, 1, 4, 1, Q("30.741019 mm")),
    Sketcher.Constraint("DistanceY", -1, 1, 7, 2, Q("40.98904 mm")),
    Sketcher.Constraint("DistanceY", -1, 1, 8, 1, Q("36.230149 mm")),
    Sketcher.Constraint("DistanceY", -1, 1, 10, 2, Q("34.51451 mm")),
    Sketcher.Constraint("DistanceX", -1, 1, 11, 2, Q("20.198819 mm")),
    Sketcher.Constraint("DistanceX", -1, 1, 12, 2, Q("21.631749 mm")),
    Sketcher.Constraint("DistanceY", -1, 1, 13, 1, Q("26.539839 mm")),
    Sketcher.Constraint("DistanceX", -1, 1, 14, 1, Q("21.631749 mm")),
    Sketcher.Constraint("DistanceX", -1, 1, 15, 2, Q("20.198819 mm")),
    Sketcher.Constraint("DistanceY", -1, 1, 16, 2, Q("18.565169 mm")),
    Sketcher.Constraint("DistanceY", -1, 1, 18, 1, Q("16.84953 mm")),
    Sketcher.Constraint("DistanceY", -1, 1, 19, 1, Q("12.090639 mm")),
    Sketcher.Constraint("DistanceY", -1, 1, 20, 2, Q("10.631991 mm")),
    Sketcher.Constraint("DistanceY", -1, 1, 21, 2, Q("8.733578 mm")),
    Sketcher.Constraint("DistanceX", -1, 1, 22, 2, Q("30.741019 mm")),
    Sketcher.Constraint("DistanceY", -1, 1, 23, 1, Q("10.86059 mm")),
    Sketcher.Constraint("DistanceX", -1, 1, 26, 2, Q("42.129389 mm")),
    Sketcher.Constraint("DistanceY", -1, 1, 30, 2, Q("8.733578 mm")),
    Sketcher.Constraint("DistanceX", -1, 1, 31, 2, Q("54.068341 mm")),
    Sketcher.Constraint("DistanceY", -1, 1, 31, 2, Q("10.631991 mm")),
    Sketcher.Constraint("DistanceX", -1, 1, 32, 2, Q("53.356911 mm")),
    Sketcher.Constraint("DistanceY", -1, 1, 32, 2, Q("12.090639 mm")),
    Sketcher.Constraint("DistanceX", -1, 1, 33, 1, Q("53.852069 mm")),
    Sketcher.Constraint("DistanceX", -1, 1, 34, 1, Q("58.225031 mm")),
    Sketcher.Constraint("DistanceX", -1, 1, 35, 2, Q("59.832131 mm")),
    Sketcher.Constraint("DistanceY", -1, 1, 35, 2, Q("18.565169 mm")),
    Sketcher.Constraint("DistanceY", -1, 1, 37, 2, Q("22.398769 mm")),
    Sketcher.Constraint("DistanceX", -1, 1, 38, 1, Q("57.000641 mm")),
    Sketcher.Constraint("DistanceY", -1, 1, 38, 1, Q("26.539839 mm")),
    Sketcher.Constraint("DistanceY", -1, 1, 39, 1, Q("30.68091 mm")),
    Sketcher.Constraint("DistanceX", -1, 1, 41, 2, Q("59.832131 mm")),
    Sketcher.Constraint("DistanceY", -1, 1, 41, 2, Q("34.51451 mm")),
    Sketcher.Constraint("DistanceX", -1, 1, 42, 2, Q("58.225031 mm")),
    Sketcher.Constraint("DistanceX", -1, 1, 43, 1, Q("53.852069 mm")),
    Sketcher.Constraint("DistanceX", -1, 1, 44, 1, Q("53.356911 mm")),
    Sketcher.Constraint("DistanceY", -1, 1, 44, 1, Q("40.98904 mm")),
    Sketcher.Constraint("DistanceX", -1, 1, 45, 2, Q("54.068341 mm")),
    Sketcher.Constraint("Distance", 0, Q("1.622894 mm")),
    Sketcher.Constraint("Distance", 2, Q("1.622894 mm")),
    Sketcher.Constraint("Distance", 5, Q("1.622894 mm")),
    Sketcher.Constraint("Distance", 7, Q("1.622894 mm")),
    Sketcher.Constraint("Distance", 10, Q("1.622894 mm")),
    Sketcher.Constraint("Distance", 12, Q("1.622894 mm")),
    Sketcher.Constraint("Distance", 15, Q("1.622894 mm")),
    Sketcher.Constraint("Distance", 17, Q("1.622894 mm")),
    Sketcher.Constraint("Distance", 20, Q("1.622894 mm")),
    Sketcher.Constraint("Distance", 22, Q("1.622894 mm")),
    Sketcher.Constraint("Distance", 25, Q("1.622894 mm")),
    Sketcher.Constraint("Distance", 27, Q("1.622894 mm")),
    Sketcher.Constraint("Distance", 30, Q("1.622894 mm")),
    Sketcher.Constraint("Distance", 37, Q("1.622894 mm")),
    Sketcher.Constraint("Distance", 40, Q("1.622894 mm")),
    Sketcher.Constraint("Distance", 45, Q("1.622894 mm")),
    Sketcher.Constraint("Distance", 47, Q("1.622894 mm")),
    Sketcher.Constraint("DistanceX", -1, 1, 1, 3, Q("40.514503 mm")),
    Sketcher.Constraint("DistanceX", -1, 1, 3, 3, Q("34.164503 mm")),
    Sketcher.Constraint("DistanceY", -1, 1, 3, 3, Q("46.563303 mm")),
    Sketcher.Constraint("DistanceX", -1, 1, 8, 3, Q("23.607748 mm")),
    Sketcher.Constraint("DistanceY", -1, 1, 8, 3, Q("39.006725 mm")),
    Sketcher.Constraint("DistanceX", -1, 1, 18, 3, Q("23.433315 mm")),
    Sketcher.Constraint("DistanceX", -1, 1, 19, 3, Q("23.607748 mm")),
    Sketcher.Constraint("DistanceX", -1, 1, 24, 3, Q("34.164503 mm")),
    Sketcher.Constraint("DistanceX", -1, 1, 26, 3, Q("40.514503 mm")),
    Sketcher.Constraint("DistanceX", -1, 1, 36, 3, Q("23.366953 mm")),
    Sketcher.Constraint("DistanceX", -1, 1, 38, 3, Q("61.520206 mm")),
    Sketcher.Constraint("DistanceX", -1, 1, 41, 3, Q("23.366953 mm")),
    Sketcher.Constraint("DistanceX", -1, 1, 1, 2, Q("38.899616 mm")),
    Sketcher.Constraint("DistanceX", -1, 1, 24, 1, Q("38.617803 mm")),
])
pad3 = body.newObject("PartDesign::Pad", "Pad002")
pad3.Profile = sketch3
pad3.Length = 7
pad3.Reversed = True

# Sketch on XY plane
sketch4 = body.newObject("Sketcher::SketchObject", "Sketch003")
sketch4.AttachmentSupport = (doc.getObject("XY_Plane"), [""])
sketch4.MapMode = "FlatFace"
sketch4.AttachmentOffset = App.Placement(App.Vector(0, 0, 35.2), App.Rotation())
sketch4.addGeometry(Part.Circle(App.Vector(40.514503, 26.539839, 0), App.Vector(0, 0, 1), 15), False)
sketch4.addConstraint([
    Sketcher.Constraint("Diameter", 0, Q("30 mm")),
    Sketcher.Constraint("DistanceY", -1, 1, 0, 3, Q("26.539839 mm")),
    Sketcher.Constraint("DistanceX", -1, 1, 0, 3, Q("40.514503 mm")),
])
pad4 = body.newObject("PartDesign::Pad", "Pad003")
pad4.Profile = sketch4
pad4.Length = 6.3
pad4.Reversed = True

# Sketch on XY plane
sketch5 = body.newObject("Sketcher::SketchObject", "Sketch004")
sketch5.AttachmentSupport = (doc.getObject("XY_Plane"), [""])
sketch5.MapMode = "FlatFace"
sketch5.AttachmentOffset = App.Placement(App.Vector(0, 0, -3.5), App.Rotation())
sketch5.addGeometry(Part.Circle(App.Vector(40.514503, 26.539839, 0), App.Vector(0, 0, 1), 15), False)
sketch5.addConstraint([
    Sketcher.Constraint("Diameter", 0, Q("30 mm")),
    Sketcher.Constraint("DistanceY", -1, 1, 0, 3, Q("26.539839 mm")),
    Sketcher.Constraint("DistanceX", -1, 1, 0, 3, Q("40.514503 mm")),
])
pad5 = body.newObject("PartDesign::Pad", "Pad004")
pad5.Profile = sketch5
pad5.Length = 6.3
pad5.Reversed = True

# Sketch on XY plane
sketch6 = body.newObject("Sketcher::SketchObject", "Sketch005")
sketch6.AttachmentSupport = (doc.getObject("XY_Plane"), [""])
sketch6.MapMode = "FlatFace"
sketch6.AttachmentOffset = App.Placement(App.Vector(0, 0, -9.8), App.Rotation())
sketch6.addGeometry(Part.Circle(App.Vector(40.514503, 26.539839, 0), App.Vector(0, 0, 1), 5), False)
sketch6.addConstraint([
    Sketcher.Constraint("Diameter", 0, Q("10 mm")),
    Sketcher.Constraint("DistanceY", -1, 1, 0, 3, Q("26.539839 mm")),
    Sketcher.Constraint("DistanceX", -1, 1, 0, 3, Q("40.514503 mm")),
])
pocket1 = body.newObject("PartDesign::Pocket", "Pocket")
pocket1.Profile = sketch6
pocket1.Type = "ThroughAll"
pocket1.Reversed = True

doc.recompute()
